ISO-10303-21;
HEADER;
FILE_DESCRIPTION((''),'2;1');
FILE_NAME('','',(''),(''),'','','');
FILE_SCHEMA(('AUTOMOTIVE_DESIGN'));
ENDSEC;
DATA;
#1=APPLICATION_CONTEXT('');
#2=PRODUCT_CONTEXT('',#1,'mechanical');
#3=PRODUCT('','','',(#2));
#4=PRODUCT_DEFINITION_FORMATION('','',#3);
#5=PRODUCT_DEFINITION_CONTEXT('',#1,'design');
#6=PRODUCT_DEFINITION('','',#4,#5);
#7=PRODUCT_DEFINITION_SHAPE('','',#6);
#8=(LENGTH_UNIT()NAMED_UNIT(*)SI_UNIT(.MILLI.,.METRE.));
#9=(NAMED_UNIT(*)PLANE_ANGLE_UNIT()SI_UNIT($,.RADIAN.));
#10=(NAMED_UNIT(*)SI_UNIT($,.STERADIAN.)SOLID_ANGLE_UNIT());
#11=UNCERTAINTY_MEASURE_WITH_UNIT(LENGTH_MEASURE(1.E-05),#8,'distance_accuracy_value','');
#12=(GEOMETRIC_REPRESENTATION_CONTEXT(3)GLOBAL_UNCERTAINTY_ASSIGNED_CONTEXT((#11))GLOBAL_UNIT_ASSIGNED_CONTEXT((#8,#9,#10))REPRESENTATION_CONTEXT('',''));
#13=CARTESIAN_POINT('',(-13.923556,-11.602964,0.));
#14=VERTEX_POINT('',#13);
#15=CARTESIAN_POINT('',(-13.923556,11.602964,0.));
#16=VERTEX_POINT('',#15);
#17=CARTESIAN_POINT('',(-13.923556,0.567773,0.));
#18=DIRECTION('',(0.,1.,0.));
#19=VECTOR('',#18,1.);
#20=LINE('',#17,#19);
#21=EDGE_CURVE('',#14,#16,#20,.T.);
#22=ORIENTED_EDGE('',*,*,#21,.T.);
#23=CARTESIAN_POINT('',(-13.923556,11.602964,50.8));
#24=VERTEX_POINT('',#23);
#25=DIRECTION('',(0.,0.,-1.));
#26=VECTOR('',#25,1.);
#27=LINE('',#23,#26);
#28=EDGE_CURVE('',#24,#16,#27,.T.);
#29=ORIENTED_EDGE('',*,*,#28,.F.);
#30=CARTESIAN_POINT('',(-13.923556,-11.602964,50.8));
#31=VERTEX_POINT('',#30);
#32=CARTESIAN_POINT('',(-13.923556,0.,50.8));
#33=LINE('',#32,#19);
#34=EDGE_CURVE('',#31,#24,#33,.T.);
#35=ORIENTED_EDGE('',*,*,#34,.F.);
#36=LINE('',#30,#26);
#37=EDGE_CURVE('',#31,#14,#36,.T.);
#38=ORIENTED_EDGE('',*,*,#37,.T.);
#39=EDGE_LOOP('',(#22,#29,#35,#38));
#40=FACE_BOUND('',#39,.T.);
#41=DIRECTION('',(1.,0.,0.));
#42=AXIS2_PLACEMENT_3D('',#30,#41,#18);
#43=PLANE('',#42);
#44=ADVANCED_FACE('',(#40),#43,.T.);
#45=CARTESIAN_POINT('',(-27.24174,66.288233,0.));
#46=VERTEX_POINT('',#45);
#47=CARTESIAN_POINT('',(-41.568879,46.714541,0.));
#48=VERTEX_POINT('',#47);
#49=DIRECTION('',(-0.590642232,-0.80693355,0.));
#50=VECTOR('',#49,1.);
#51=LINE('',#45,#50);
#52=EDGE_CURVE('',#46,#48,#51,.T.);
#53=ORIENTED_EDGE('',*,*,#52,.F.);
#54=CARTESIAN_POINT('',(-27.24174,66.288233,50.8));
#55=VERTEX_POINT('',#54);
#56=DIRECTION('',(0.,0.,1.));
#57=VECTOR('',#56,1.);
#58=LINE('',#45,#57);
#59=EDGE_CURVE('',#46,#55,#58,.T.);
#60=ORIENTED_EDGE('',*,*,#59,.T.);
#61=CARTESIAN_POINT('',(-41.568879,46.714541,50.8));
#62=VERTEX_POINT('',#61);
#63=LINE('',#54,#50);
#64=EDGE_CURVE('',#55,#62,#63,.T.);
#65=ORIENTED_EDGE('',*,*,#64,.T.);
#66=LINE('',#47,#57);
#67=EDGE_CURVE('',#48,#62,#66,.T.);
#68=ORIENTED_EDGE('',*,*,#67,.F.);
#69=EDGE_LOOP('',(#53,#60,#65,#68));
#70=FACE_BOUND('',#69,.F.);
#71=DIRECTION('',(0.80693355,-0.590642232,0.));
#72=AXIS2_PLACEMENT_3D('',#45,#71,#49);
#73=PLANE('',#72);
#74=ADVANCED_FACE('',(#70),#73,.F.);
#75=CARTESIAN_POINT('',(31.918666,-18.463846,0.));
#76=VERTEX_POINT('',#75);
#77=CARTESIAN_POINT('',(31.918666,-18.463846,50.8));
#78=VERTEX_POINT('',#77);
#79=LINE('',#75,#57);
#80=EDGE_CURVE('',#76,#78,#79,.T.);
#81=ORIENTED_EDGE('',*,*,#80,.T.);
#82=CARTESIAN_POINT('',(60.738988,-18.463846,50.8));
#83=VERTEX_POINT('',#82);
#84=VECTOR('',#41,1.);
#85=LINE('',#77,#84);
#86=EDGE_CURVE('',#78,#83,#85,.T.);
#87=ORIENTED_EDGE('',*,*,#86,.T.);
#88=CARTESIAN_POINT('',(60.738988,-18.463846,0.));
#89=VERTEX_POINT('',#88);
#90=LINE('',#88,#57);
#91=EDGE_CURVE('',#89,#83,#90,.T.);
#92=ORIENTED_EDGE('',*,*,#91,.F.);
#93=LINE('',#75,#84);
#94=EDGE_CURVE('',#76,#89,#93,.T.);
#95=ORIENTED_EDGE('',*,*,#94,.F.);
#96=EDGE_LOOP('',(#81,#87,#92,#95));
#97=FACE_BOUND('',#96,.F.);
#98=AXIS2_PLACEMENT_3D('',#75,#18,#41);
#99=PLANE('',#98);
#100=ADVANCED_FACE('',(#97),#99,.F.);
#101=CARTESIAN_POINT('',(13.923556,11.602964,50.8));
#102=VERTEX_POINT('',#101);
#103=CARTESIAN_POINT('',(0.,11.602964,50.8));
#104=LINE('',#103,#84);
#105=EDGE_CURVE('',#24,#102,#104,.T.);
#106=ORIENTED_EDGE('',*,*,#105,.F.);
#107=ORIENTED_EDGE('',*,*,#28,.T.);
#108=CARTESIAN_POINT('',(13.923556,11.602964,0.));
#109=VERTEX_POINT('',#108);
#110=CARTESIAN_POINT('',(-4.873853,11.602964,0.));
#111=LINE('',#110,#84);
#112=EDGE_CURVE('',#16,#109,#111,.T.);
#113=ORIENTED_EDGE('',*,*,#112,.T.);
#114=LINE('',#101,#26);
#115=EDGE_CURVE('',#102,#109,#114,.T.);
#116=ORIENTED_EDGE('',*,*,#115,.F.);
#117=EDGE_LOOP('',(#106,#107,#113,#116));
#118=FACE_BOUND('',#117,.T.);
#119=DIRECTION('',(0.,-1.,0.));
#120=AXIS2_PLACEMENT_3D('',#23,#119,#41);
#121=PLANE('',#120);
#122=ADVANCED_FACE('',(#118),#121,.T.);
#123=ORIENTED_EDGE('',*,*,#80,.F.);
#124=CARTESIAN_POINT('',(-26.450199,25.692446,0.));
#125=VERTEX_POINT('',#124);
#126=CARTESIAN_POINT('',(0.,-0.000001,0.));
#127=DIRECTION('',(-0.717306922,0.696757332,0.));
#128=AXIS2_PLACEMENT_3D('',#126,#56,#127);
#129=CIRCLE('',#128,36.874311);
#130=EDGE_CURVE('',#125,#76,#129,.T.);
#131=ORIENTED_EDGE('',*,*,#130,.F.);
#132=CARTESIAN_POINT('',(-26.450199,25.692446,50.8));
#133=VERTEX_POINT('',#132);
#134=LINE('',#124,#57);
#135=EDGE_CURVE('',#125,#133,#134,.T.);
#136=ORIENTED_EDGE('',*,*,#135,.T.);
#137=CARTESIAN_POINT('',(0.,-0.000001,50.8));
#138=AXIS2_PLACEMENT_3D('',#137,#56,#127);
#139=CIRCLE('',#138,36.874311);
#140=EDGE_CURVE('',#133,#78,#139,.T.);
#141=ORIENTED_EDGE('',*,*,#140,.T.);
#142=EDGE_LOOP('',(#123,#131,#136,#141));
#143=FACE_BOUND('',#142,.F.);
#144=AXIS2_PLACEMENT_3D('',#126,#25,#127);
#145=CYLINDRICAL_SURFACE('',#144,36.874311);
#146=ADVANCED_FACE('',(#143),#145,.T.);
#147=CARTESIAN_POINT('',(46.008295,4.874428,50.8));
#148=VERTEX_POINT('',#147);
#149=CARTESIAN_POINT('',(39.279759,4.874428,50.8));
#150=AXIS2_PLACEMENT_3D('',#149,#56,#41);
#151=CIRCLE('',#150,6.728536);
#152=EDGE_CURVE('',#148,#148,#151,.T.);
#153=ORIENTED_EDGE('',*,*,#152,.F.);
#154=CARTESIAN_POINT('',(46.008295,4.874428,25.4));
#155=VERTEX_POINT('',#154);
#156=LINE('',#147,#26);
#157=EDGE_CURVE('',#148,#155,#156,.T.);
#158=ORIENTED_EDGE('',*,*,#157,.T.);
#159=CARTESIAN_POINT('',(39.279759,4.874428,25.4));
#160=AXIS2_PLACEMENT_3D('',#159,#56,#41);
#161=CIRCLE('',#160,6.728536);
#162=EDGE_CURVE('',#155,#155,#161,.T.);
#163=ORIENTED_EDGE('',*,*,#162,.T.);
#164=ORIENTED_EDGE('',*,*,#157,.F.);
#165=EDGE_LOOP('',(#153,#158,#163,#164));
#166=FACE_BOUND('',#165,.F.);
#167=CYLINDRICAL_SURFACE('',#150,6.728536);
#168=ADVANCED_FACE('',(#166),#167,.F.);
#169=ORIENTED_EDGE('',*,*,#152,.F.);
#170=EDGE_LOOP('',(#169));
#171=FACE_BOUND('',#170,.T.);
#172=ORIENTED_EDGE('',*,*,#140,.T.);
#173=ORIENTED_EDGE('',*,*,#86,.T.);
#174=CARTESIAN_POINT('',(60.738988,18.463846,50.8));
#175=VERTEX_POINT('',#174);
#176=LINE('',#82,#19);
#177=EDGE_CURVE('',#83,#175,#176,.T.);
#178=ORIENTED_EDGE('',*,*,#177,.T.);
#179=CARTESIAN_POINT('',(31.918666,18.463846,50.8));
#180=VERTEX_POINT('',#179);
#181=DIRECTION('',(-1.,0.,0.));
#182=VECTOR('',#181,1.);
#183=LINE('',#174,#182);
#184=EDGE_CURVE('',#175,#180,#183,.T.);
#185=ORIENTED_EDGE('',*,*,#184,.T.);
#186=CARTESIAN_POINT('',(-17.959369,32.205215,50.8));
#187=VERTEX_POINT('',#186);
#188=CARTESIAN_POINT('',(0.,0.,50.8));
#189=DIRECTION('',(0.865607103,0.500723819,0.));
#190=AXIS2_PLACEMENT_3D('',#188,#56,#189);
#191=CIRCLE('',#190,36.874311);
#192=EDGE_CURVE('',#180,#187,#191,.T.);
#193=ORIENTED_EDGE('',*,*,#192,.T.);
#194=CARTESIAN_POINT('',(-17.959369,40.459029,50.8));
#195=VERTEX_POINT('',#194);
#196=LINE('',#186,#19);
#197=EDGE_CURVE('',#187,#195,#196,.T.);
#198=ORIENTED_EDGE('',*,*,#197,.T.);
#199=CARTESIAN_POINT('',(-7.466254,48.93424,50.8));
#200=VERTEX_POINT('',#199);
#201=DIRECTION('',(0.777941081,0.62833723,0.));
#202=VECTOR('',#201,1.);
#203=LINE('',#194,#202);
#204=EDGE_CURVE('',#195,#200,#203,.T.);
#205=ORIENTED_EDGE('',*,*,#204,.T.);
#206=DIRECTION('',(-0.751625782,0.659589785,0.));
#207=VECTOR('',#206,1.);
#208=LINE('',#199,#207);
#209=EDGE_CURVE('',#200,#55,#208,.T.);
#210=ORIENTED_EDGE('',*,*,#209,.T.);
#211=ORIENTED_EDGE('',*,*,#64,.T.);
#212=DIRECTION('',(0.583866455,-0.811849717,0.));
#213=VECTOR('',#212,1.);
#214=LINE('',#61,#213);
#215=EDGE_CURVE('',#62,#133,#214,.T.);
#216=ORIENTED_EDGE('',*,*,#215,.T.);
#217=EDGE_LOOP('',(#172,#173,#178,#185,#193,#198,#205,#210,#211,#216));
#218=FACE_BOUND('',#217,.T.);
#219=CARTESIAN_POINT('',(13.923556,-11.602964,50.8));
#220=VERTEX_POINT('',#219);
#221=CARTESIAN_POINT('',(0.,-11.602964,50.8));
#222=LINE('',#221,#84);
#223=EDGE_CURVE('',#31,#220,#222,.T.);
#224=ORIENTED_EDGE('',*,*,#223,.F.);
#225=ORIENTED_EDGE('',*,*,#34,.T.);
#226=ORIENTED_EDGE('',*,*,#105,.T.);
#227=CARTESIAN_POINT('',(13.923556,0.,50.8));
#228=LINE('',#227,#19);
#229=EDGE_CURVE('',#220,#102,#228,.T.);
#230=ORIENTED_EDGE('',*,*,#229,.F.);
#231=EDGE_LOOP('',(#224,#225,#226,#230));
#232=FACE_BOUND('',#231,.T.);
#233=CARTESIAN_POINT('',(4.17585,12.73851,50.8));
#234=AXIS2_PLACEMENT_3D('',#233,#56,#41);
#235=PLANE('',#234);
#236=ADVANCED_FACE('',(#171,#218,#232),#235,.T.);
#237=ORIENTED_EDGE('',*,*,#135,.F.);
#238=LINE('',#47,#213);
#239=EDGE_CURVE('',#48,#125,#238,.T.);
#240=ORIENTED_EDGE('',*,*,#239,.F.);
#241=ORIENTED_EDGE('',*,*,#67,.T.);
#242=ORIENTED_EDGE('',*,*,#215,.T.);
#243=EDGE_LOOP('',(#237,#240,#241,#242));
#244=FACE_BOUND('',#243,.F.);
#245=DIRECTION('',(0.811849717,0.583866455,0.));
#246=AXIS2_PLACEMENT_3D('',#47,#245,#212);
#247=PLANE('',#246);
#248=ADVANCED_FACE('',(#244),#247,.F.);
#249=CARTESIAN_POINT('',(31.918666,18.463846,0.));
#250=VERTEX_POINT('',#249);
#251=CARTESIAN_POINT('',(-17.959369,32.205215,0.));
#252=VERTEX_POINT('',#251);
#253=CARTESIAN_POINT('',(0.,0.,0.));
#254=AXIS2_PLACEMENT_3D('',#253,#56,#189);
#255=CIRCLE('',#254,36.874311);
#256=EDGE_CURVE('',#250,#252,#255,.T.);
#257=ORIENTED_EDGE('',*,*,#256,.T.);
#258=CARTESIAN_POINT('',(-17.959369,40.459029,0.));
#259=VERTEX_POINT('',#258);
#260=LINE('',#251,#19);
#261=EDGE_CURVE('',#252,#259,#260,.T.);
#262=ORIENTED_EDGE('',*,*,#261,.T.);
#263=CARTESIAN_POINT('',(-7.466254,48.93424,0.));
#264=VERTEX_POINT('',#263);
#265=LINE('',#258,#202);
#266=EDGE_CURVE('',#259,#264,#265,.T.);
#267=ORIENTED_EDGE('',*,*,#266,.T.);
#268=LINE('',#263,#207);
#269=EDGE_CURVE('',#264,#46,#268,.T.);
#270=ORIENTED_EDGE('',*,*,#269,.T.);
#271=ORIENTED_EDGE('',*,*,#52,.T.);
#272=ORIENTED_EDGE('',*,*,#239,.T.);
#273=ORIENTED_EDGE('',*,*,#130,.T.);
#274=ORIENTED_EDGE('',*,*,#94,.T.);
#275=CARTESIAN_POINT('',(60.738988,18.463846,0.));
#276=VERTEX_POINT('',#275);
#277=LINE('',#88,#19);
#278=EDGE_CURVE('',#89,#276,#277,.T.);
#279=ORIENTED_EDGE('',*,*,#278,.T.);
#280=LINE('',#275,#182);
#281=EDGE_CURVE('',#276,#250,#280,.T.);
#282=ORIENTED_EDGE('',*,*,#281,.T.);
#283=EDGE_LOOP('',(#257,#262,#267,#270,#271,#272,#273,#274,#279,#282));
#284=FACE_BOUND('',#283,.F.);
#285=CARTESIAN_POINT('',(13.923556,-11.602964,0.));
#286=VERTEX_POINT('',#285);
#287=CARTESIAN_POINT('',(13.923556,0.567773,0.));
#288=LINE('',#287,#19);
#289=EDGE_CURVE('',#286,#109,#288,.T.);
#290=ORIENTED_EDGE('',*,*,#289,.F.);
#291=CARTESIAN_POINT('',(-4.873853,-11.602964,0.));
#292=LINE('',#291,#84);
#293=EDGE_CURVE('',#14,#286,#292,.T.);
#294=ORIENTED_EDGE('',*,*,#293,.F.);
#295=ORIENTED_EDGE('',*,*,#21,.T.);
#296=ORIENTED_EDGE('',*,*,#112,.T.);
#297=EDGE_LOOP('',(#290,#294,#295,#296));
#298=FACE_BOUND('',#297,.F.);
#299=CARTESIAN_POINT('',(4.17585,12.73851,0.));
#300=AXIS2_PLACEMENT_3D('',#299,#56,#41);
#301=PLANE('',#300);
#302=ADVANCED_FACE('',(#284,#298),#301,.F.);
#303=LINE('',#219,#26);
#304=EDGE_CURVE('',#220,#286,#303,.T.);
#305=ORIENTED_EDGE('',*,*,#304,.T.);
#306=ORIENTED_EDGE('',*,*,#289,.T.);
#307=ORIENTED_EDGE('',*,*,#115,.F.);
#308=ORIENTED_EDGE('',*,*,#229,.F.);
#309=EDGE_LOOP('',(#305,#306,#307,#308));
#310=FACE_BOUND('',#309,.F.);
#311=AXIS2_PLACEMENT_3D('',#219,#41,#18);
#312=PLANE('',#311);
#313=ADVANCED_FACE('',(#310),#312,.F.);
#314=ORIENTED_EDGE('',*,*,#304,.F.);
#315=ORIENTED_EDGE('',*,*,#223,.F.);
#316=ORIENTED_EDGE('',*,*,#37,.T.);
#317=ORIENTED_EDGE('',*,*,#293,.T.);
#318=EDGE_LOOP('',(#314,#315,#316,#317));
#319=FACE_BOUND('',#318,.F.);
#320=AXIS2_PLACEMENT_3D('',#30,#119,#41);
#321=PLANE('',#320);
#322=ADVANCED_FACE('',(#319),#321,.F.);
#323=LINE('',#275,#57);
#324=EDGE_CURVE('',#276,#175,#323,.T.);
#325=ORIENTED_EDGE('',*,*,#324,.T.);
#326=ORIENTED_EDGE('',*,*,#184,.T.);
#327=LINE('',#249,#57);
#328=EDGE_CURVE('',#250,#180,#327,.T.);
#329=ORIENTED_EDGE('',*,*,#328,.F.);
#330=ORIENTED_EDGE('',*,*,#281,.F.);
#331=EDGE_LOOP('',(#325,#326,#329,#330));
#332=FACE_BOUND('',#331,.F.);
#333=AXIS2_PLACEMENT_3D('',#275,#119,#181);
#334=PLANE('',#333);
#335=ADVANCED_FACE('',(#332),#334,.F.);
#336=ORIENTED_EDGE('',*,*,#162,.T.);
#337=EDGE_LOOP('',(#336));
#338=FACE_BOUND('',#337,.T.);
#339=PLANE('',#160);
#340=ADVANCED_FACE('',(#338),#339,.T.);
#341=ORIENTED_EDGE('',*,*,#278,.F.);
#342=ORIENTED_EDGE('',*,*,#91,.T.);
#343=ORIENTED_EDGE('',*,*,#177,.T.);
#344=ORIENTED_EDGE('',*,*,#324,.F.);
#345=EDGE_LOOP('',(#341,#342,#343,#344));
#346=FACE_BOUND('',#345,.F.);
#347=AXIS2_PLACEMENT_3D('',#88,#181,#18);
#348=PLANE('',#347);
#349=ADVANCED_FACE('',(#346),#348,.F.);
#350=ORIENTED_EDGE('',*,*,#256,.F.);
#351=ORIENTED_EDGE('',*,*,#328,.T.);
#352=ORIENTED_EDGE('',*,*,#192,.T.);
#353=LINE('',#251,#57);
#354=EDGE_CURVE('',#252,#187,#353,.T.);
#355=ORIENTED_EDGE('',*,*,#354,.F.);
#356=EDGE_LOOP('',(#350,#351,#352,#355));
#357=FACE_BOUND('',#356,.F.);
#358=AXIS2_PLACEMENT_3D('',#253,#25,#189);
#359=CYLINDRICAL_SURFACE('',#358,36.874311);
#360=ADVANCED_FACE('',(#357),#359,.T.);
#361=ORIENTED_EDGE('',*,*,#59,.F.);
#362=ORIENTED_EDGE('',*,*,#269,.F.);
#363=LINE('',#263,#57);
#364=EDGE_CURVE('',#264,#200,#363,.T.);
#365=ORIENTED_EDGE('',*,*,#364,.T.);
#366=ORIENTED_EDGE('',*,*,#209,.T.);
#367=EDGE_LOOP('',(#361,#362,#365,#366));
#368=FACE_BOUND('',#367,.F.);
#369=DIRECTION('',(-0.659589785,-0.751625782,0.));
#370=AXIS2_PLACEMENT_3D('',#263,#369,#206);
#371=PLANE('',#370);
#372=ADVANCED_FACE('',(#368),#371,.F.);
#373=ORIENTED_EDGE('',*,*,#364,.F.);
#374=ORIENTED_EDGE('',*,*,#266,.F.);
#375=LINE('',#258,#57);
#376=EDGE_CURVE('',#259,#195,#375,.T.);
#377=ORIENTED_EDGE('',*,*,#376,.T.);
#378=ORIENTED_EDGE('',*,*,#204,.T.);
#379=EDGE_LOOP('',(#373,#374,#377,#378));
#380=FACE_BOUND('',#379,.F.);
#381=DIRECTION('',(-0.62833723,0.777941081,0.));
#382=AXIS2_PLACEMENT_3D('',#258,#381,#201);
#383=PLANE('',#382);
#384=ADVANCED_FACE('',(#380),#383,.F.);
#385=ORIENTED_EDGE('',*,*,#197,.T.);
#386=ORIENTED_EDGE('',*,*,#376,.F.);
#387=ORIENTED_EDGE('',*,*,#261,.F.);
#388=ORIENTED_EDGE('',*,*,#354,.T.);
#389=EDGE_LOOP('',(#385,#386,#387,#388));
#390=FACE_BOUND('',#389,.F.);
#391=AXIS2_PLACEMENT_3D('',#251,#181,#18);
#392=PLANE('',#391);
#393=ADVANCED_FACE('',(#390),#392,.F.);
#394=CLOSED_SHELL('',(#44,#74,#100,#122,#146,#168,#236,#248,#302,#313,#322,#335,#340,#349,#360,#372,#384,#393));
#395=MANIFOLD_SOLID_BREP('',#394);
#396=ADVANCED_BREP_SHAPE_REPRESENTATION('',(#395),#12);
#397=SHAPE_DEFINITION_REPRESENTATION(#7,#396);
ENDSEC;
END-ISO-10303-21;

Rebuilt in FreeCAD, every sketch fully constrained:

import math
import FreeCAD as App
import Part
import Sketcher

V = App.Vector
Q = App.Units.Quantity


def add_polygon(sketch, points):
    """Adds a closed chain of lines whose ends are joined by coincident constraints."""
    first, n = sketch.GeometryCount, len(points)
    for a, b in zip(points, points[1:] + points[:1]):
        sketch.addGeometry(Part.LineSegment(App.Vector(*a, 0), App.Vector(*b, 0)), False)
    for i in range(n):
        sketch.addConstraint(Sketcher.Constraint("Coincident", first + i, 2, first + (i + 1) % n, 1))

doc = App.newDocument("Part")
body = doc.addObject("PartDesign::Body", "Body")

sketch1 = body.newObject("Sketcher::SketchObject", "Sketch")
sketch1.AttachmentSupport = (doc.getObject("XY_Plane"), [""])
sketch1.MapMode = "FlatFace"
sketch1.addGeometry([
    Part.LineSegment(V(-42, 47, 0), V(-26, 26, 0)),
    Part.ArcOfCircle(Part.Circle(V(0, 0, 0), V(0, 0, 1), 37), math.radians(136), math.radians(330)),
    Part.LineSegment(V(32, -18, 0), V(61, -18, 0)),
    Part.LineSegment(V(61, -18, 0), V(61, 18, 0)),
    Part.LineSegment(V(61, 18, 0), V(32, 18, 0)),
    Part.ArcOfCircle(Part.Circle(V(0, 0, 0), V(0, 0, 1), 37), math.radians(30), math.radians(119)),
    Part.LineSegment(V(-18, 32, 0), V(-18, 40, 0)),
    Part.LineSegment(V(-18, 40, 0), V(-7, 49, 0)),
    Part.LineSegment(V(-7, 49, 0), V(-27, 66, 0)),
    Part.LineSegment(V(-27, 66, 0), V(-42, 47, 0)),
], False)
sketch1.addConstraint([
    Sketcher.Constraint("Coincident", 0, 2, 1, 1),
    Sketcher.Constraint("Coincident", 1, 2, 2, 1),
    Sketcher.Constraint("Coincident", 2, 2, 3, 1),
    Sketcher.Constraint("Coincident", 3, 2, 4, 1),
    Sketcher.Constraint("Coincident", 4, 2, 5, 1),
    Sketcher.Constraint("Coincident", 5, 2, 6, 1),
    Sketcher.Constraint("Coincident", 6, 2, 7, 1),
    Sketcher.Constraint("Coincident", 7, 2, 8, 1),
    Sketcher.Constraint("Coincident", 8, 2, 9, 1),
    Sketcher.Constraint("Coincident", 9, 2, 0, 1),
    Sketcher.Constraint("Horizontal", 2),
    Sketcher.Constraint("Vertical", 3),
    Sketcher.Constraint("Horizontal", 4),
    Sketcher.Constraint("Vertical", 6),
    Sketcher.Constraint("Coincident", 1, 3, -1, 1),
    Sketcher.Constraint("Coincident", 5, 3, -1, 1),
    Sketcher.Constraint("Equal", 1, 5),
    Sketcher.Constraint("Vertical", 1, 2, 4, 2),
    Sketcher.Constraint("Radius", 1, Q("36.874311 mm")),
    Sketcher.Constraint("DistanceX", 2, 1, 2, 2, Q("28.820322 mm")),
    Sketcher.Constraint("DistanceX", 0, 2, -1, 1, Q("26.450199 mm")),
    Sketcher.Constraint("DistanceY", 3, 2, 0, 2, Q("7.2286 mm")),
    Sketcher.Constraint("DistanceY", 9, 2, 7, 2, Q("2.219699 mm")),
    Sketcher.Constraint("Distance", 0, Q("25.894072 mm")),
    Sketcher.Constraint("Distance", 8, Q("26.310282 mm")),
    Sketcher.Constraint("DistanceY", 6, 1, 6, 2, Q("8.253814 mm")),
    Sketcher.Constraint("DistanceX", 5, 2, -1, 1, Q("17.959369 mm")),
    Sketcher.Constraint("DistanceY", -1, 1, 7, 2, Q("48.93424 mm")),
    Sketcher.Constraint("DistanceX", 8, 2, -1, 1, Q("27.24174 mm")),
    Sketcher.Constraint("Distance", 7, Q("13.488316 mm")),
])
pad1 = body.newObject("PartDesign::Pad", "Pad")
pad1.Profile = sketch1
pad1.Length = Q("2 in")

sketch2 = body.newObject("Sketcher::SketchObject", "Sketch001")
sketch2.AttachmentSupport = (doc.getObject("XY_Plane"), [""])
sketch2.MapMode = "FlatFace"
sketch2.AttachmentOffset = App.Placement(V(0, 0, 2 * 25.4), App.Rotation())
add_polygon(sketch2, [(-14, 12), (-14, -12), (14, -12), (14, 12)])
sketch2.addConstraint([
    Sketcher.Constraint("Vertical", 0),
    Sketcher.Constraint("Horizontal", 1),
    Sketcher.Constraint("Vertical", 2),
    Sketcher.Constraint("Horizontal", 3),
    Sketcher.Constraint("Symmetric", 0, 2, 2, 2, -1, 1),
    Sketcher.Constraint("DistanceX", 1, 1, 1, 2, Q("27.847112 mm")),
    Sketcher.Constraint("DistanceY", 0, 2, 0, 1, Q("23.205928 mm")),
])
pocket1 = body.newObject("PartDesign::Pocket", "Pocket")
pocket1.Profile = sketch2
pocket1.Length = 118.98803

sketch3 = body.newObject("Sketcher::SketchObject", "Sketch002")
sketch3.AttachmentSupport = (doc.getObject("XY_Plane"), [""])
sketch3.MapMode = "FlatFace"
sketch3.AttachmentOffset = App.Placement(V(0, 0, 2 * 25.4), App.Rotation())
sketch3.addGeometry(Part.Circle(V(39, 5, 0), V(0, 0, 1), 7), False)
sketch3.addConstraint([
    Sketcher.Constraint("Diameter", 0, Q("13.457072 mm")),
    Sketcher.Constraint("DistanceX", -1, 1, 0, 3, Q("39.279759 mm")),
    Sketcher.Constraint("DistanceY", -1, 1, 0, 3, Q("4.874428 mm")),
])
pocket2 = body.newObject("PartDesign::Pocket", "Pocket001")
pocket2.Profile = sketch3
pocket2.Length = Q("1 in")

doc.recompute()
